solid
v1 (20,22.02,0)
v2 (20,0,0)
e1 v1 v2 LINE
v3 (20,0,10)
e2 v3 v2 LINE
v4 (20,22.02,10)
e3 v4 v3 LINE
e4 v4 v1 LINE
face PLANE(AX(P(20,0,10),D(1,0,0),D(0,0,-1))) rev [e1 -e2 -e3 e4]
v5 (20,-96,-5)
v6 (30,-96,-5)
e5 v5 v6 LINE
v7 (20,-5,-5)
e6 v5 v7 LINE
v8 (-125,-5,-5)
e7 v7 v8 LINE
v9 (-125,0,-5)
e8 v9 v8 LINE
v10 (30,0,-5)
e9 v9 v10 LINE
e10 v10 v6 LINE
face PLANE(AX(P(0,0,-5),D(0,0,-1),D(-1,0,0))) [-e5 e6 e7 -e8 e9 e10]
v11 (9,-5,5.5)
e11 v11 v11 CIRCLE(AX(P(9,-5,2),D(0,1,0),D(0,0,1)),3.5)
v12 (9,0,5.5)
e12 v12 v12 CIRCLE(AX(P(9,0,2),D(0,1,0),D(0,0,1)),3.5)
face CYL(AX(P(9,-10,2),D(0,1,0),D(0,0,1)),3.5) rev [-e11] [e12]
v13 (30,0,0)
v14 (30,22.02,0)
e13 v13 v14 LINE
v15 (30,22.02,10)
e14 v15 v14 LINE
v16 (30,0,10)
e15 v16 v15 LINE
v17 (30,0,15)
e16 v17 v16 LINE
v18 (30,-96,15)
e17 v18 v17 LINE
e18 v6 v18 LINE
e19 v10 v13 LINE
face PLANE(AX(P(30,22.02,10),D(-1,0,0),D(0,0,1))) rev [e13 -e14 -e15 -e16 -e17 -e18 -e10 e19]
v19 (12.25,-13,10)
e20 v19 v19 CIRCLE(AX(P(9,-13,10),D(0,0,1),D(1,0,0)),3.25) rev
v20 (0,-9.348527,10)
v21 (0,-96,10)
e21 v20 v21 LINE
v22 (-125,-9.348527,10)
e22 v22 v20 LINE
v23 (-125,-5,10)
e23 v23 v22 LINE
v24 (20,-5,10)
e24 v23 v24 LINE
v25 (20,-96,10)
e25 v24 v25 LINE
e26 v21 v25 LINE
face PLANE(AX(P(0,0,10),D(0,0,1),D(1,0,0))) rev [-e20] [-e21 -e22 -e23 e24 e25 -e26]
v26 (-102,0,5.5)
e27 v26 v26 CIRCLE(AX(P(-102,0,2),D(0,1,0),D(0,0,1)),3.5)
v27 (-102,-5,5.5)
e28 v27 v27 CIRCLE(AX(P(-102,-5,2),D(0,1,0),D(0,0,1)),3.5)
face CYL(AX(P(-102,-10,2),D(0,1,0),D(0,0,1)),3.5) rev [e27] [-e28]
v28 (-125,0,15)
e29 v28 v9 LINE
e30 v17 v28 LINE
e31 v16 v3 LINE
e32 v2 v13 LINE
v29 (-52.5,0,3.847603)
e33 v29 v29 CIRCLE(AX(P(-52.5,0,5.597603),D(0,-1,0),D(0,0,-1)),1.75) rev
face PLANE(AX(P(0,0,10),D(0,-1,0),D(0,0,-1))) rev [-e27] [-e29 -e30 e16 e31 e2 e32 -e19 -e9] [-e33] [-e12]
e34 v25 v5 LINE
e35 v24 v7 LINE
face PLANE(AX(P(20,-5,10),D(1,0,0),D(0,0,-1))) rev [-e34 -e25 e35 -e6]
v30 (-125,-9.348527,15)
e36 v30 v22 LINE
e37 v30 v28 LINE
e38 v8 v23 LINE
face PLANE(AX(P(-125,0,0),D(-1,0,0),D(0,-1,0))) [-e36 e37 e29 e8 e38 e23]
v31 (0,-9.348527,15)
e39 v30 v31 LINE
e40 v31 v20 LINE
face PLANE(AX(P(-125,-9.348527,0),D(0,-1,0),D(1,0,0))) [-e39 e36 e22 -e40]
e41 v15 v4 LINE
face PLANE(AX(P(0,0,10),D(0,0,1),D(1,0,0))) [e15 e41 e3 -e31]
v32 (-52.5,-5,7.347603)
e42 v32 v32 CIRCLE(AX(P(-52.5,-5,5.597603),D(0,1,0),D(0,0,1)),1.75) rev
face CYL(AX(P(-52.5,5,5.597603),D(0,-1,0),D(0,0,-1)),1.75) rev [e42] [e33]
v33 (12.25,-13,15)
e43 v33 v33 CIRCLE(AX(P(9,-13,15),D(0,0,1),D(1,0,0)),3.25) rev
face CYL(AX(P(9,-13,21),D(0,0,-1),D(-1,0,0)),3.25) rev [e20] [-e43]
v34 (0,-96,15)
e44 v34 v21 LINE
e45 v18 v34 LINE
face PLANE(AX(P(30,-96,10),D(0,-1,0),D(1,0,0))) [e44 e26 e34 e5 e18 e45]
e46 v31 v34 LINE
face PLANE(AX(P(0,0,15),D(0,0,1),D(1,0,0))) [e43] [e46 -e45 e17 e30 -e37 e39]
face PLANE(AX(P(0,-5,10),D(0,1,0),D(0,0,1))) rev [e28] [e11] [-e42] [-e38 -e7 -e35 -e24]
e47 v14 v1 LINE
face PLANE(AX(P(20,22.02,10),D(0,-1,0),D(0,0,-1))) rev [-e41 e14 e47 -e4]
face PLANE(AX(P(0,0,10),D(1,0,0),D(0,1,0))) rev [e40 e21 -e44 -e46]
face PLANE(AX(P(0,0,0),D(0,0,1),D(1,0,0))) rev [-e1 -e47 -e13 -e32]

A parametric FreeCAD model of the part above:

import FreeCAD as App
import Part
import Sketcher
from FreeCAD import Vector
Q = App.Units.Quantity


def add_polygon(sketch, points):
    """Adds a closed chain of lines whose ends are joined by coincident constraints."""
    first, n = sketch.GeometryCount, len(points)
    for a, b in zip(points, points[1:] + points[:1]):
        sketch.addGeometry(Part.LineSegment(App.Vector(*a, 0), App.Vector(*b, 0)), False)
    for i in range(n):
        sketch.addConstraint(Sketcher.Constraint("Coincident", first + i, 2, first + (i + 1) % n, 1))

doc = App.newDocument("Part")
body = doc.addObject("PartDesign::Body", "Body")

# Sketch on XY plane
sketch1 = doc.addObject("Sketcher::SketchObject", "Sketch")
body.addObject(sketch1)
sketch1.AttachmentSupport = (doc.XY_Plane, [""])
sketch1.MapMode = "FlatFace"
add_polygon(sketch1, [(0, 0), (0, -5), (20, -5), (20, -25), (30, -25), (30, 22), (20, 22), (20, 0)])  # lines 0-7
sketch1.addConstraint([
    Sketcher.Constraint("Vertical", 0),
    Sketcher.Constraint("Horizontal", 1),
    Sketcher.Constraint("Vertical", 2),
    Sketcher.Constraint("Horizontal", 3),
    Sketcher.Constraint("Vertical", 4),
    Sketcher.Constraint("Horizontal", 5),
    Sketcher.Constraint("Vertical", 6),
    Sketcher.Constraint("Horizontal", 7),
    Sketcher.Constraint("Coincident", 7, 2, -1, 1),
    Sketcher.Constraint("Vertical", 2, 2, 5, 2),
    Sketcher.Constraint("Equal", 7, 2),
    Sketcher.Constraint("DistanceX", 1, 1, 1, 2, Q("20 mm")),
    Sketcher.Constraint("DistanceX", 3, 1, 3, 2, Q("10 mm")),
    Sketcher.Constraint("DistanceY", 0, 2, 0, 1, Q("5 mm")),
    Sketcher.Constraint("DistanceY", 4, 1, 4, 2, Q("47.02 mm")),
])
pad1 = doc.addObject("PartDesign::Pad", "Pad")
body.addObject(pad1)
pad1.Profile = sketch1
pad1.Length = 10

# Sketch on XY plane
sketch2 = doc.addObject("Sketcher::SketchObject", "Sketch001")
body.addObject(sketch2)
sketch2.AttachmentSupport = (doc.XY_Plane, [""])
sketch2.MapMode = "FlatFace"
sketch2.AttachmentOffset = App.Placement(Vector(0, 0, 10), App.Rotation())
add_polygon(sketch2, [(0, 0), (0, -25), (30, -25), (30, 0)])  # lines 0-3
sketch2.addConstraint([
    Sketcher.Constraint("Vertical", 0),
    Sketcher.Constraint("Horizontal", 1),
    Sketcher.Constraint("Vertical", 2),
    Sketcher.Constraint("Horizontal", 3),
    Sketcher.Constraint("Coincident", 3, 2, -1, 1),
    Sketcher.Constraint("DistanceX", 1, 1, 1, 2, Q("30 mm")),
    Sketcher.Constraint("DistanceY", 0, 2, 0, 1, Q("25 mm")),
])
pad2 = doc.addObject("PartDesign::Pad", "Pad001")
body.addObject(pad2)
pad2.Profile = sketch2
pad2.Length = 5

# Sketch on XY plane
sketch3 = doc.addObject("Sketcher::SketchObject", "Sketch002")
body.addObject(sketch3)
sketch3.AttachmentSupport = (doc.XY_Plane, [""])
sketch3.MapMode = "FlatFace"
add_polygon(sketch3, [(0, 0), (30, 0), (30, -25), (20, -25), (20, -5), (0, -5)])  # lines 0-5
sketch3.addConstraint([
    Sketcher.Constraint("Horizontal", 0),
    Sketcher.Constraint("Vertical", 1),
    Sketcher.Constraint("Horizontal", 2),
    Sketcher.Constraint("Vertical", 3),
    Sketcher.Constraint("Horizontal", 4),
    Sketcher.Constraint("Vertical", 5),
    Sketcher.Constraint("Coincident", 5, 2, -1, 1),
    Sketcher.Constraint("Equal", 4, 3),
    Sketcher.Constraint("DistanceX", 0, 1, 0, 2, Q("30 mm")),
    Sketcher.Constraint("DistanceX", 2, 2, 2, 1, Q("10 mm")),
    Sketcher.Constraint("DistanceY", 1, 2, 1, 1, Q("25 mm")),
])
pad3 = doc.addObject("PartDesign::Pad", "Pad002")
body.addObject(pad3)
pad3.Profile = sketch3
pad3.Length = 5
pad3.Reversed = True

# Sketch on XZ plane
sketch4 = doc.addObject("Sketcher::SketchObject", "Sketch003")
body.addObject(sketch4)
sketch4.AttachmentSupport = (doc.XZ_Plane, [""])
sketch4.MapMode = "FlatFace"
sketch4.AttachmentOffset = App.Placement(Vector(0, 0, 25), App.Rotation())
add_polygon(sketch4, [(0, 10), (20, 10), (20, -5), (30, -5), (30, 15), (0, 15)])  # lines 0-5
sketch4.addConstraint([
    Sketcher.Constraint("Horizontal", 0),
    Sketcher.Constraint("Vertical", 1),
    Sketcher.Constraint("Horizontal", 2),
    Sketcher.Constraint("Vertical", 3),
    Sketcher.Constraint("Horizontal", 4),
    Sketcher.Constraint("Vertical", 5),
    Sketcher.Constraint("PointOnObject", 4, 2, -2),
    Sketcher.Constraint("Equal", 0, 3),
    Sketcher.Constraint("DistanceX", 0, 1, 0, 2, Q("20 mm")),
    Sketcher.Constraint("DistanceX", 2, 1, 2, 2, Q("10 mm")),
    Sketcher.Constraint("DistanceY", 1, 2, 1, 1, Q("15 mm")),
    Sketcher.Constraint("DistanceY", -1, 1, 0, 2, Q("10 mm")),
])
pad4 = doc.addObject("PartDesign::Pad", "Pad003")
body.addObject(pad4)
pad4.Profile = sketch4
pad4.Length = 71

# Sketch on YZ plane
sketch5 = doc.addObject("Sketcher::SketchObject", "Sketch004")
body.addObject(sketch5)
sketch5.AttachmentSupport = (doc.YZ_Plane, [""])
sketch5.MapMode = "FlatFace"
add_polygon(sketch5, [(0, -5), (-5, -5), (-5, 10), (-9.3, 10), (-9.3, 15), (0, 15)])  # lines 0-5
sketch5.addConstraint([
    Sketcher.Constraint("Horizontal", 0),
    Sketcher.Constraint("Vertical", 1),
    Sketcher.Constraint("Horizontal", 2),
    Sketcher.Constraint("Vertical", 3),
    Sketcher.Constraint("Horizontal", 4),
    Sketcher.Constraint("Vertical", 5),
    Sketcher.Constraint("PointOnObject", 4, 2, -2),
    Sketcher.Constraint("Equal", 0, 3),
    Sketcher.Constraint("DistanceX", 0, 2, 0, 1, Q("5 mm")),
    Sketcher.Constraint("DistanceY", 1, 1, 1, 2, Q("15 mm")),
    Sketcher.Constraint("DistanceY", 0, 2, -1, 1, Q("5 mm")),
    Sketcher.Constraint("DistanceX", 2, 2, 2, 1, Q("4.348527 mm")),
])
pad5 = doc.addObject("PartDesign::Pad", "Pad004")
body.addObject(pad5)
pad5.Profile = sketch5
pad5.Length = 125
pad5.Reversed = True

# Sketch on XY plane
sketch6 = doc.addObject("Sketcher::SketchObject", "Sketch005")
body.addObject(sketch6)
sketch6.AttachmentSupport = (doc.XY_Plane, [""])
sketch6.MapMode = "FlatFace"
sketch6.AttachmentOffset = App.Placement(Vector(0, 0, 15), App.Rotation())
sketch6.addGeometry(Part.Circle(Vector(9, -13, 0), Vector(0, 0, 1), 3.2), False)
sketch6.addConstraint([
    Sketcher.Constraint("Diameter", 0, Q("6.5 mm")),
    Sketcher.Constraint("DistanceX", -1, 1, 0, 3, Q("9 mm")),
    Sketcher.Constraint("DistanceY", 0, 3, -1, 1, Q("13 mm")),
])
pocket1 = doc.addObject("PartDesign::Pocket", "Pocket")
body.addObject(pocket1)
pocket1.Profile = sketch6
pocket1.Type = "ThroughAll"
pocket1.Midplane = True

# Sketch on XZ plane
sketch7 = doc.addObject("Sketcher::SketchObject", "Sketch006")
body.addObject(sketch7)
sketch7.AttachmentSupport = (doc.XZ_Plane, [""])
sketch7.MapMode = "FlatFace"
sketch7.addGeometry(Part.Circle(Vector(-52.5, 5.6, 0), Vector(0, 0, 1), 1.8), False)
sketch7.addConstraint([
    Sketcher.Constraint("Diameter", 0, Q("3.5 mm")),
    Sketcher.Constraint("DistanceX", 0, 3, -1, 1, Q("52.5 mm")),
    Sketcher.Constraint("DistanceY", -1, 1, 0, 3, Q("5.597603 mm")),
])
pocket2 = doc.addObject("PartDesign::Pocket", "Pocket001")
body.addObject(pocket2)
pocket2.Profile = sketch7
pocket2.Type = "ThroughAll"
pocket2.Midplane = True

# Sketch on XZ plane
sketch8 = doc.addObject("Sketcher::SketchObject", "Sketch007")
body.addObject(sketch8)
sketch8.AttachmentSupport = (doc.XZ_Plane, [""])
sketch8.MapMode = "FlatFace"
sketch8.addGeometry(Part.Circle(Vector(-102, 2, 0), Vector(0, 0, 1), 3.5), False)
sketch8.addConstraint([
    Sketcher.Constraint("Diameter", 0, Q("7 mm")),
    Sketcher.Constraint("DistanceX", 0, 3, -1, 1, Q("102 mm")),
    Sketcher.Constraint("DistanceY", -1, 1, 0, 3, Q("2 mm")),
])
pocket3 = doc.addObject("PartDesign::Pocket", "Pocket002")
body.addObject(pocket3)
pocket3.Profile = sketch8
pocket3.Length = 10
pocket3.Reversed = True

# Sketch on XZ plane
sketch9 = doc.addObject("Sketcher::SketchObject", "Sketch008")
body.addObject(sketch9)
sketch9.AttachmentSupport = (doc.XZ_Plane, [""])
sketch9.MapMode = "FlatFace"
sketch9.addGeometry(Part.Circle(Vector(9, 2, 0), Vector(0, 0, 1), 3.5), False)
sketch9.addConstraint([
    Sketcher.Constraint("Diameter", 0, Q("7 mm")),
    Sketcher.Constraint("DistanceX", -1, 1, 0, 3, Q("9 mm")),
    Sketcher.Constraint("DistanceY", -1, 1, 0, 3, Q("2 mm")),
])
pocket4 = doc.addObject("PartDesign::Pocket", "Pocket003")
body.addObject(pocket4)
pocket4.Profile = sketch9
pocket4.Length = 10
pocket4.Reversed = True

doc.recompute()
